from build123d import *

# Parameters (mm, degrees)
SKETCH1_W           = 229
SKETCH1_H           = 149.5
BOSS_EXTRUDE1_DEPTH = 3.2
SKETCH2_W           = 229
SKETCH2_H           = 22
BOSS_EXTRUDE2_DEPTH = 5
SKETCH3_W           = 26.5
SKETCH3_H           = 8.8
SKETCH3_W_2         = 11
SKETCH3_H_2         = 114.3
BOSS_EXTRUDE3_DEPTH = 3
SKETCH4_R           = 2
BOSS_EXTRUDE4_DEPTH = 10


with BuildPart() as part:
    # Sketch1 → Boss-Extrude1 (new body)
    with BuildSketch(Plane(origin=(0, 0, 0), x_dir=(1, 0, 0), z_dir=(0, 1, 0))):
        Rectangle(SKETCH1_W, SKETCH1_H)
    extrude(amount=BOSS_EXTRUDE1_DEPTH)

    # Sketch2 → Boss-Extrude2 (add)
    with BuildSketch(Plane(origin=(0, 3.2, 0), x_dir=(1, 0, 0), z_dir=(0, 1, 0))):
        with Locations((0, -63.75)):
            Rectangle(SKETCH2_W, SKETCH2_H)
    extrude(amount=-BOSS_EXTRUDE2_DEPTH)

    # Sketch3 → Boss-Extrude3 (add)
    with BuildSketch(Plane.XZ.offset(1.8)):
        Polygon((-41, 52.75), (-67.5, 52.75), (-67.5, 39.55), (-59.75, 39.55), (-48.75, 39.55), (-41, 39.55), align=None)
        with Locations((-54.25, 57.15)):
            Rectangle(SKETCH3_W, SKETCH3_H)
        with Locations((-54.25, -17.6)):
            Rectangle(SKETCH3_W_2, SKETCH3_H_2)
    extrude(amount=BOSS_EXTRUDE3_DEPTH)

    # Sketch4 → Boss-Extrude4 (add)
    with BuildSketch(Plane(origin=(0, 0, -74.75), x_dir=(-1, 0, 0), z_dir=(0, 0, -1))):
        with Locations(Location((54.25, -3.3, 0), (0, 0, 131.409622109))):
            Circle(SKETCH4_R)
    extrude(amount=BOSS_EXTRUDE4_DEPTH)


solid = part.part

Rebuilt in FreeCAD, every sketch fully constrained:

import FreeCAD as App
import Part
import Sketcher

V = App.Vector
Q = App.Units.Quantity


def add_polygon(sketch, points):
    """Adds a closed chain of lines whose ends are joined by coincident constraints."""
    first, n = sketch.GeometryCount, len(points)
    for a, b in zip(points, points[1:] + points[:1]):
        sketch.addGeometry(Part.LineSegment(App.Vector(*a, 0), App.Vector(*b, 0)), False)
    for i in range(n):
        sketch.addConstraint(Sketcher.Constraint("Coincident", first + i, 2, first + (i + 1) % n, 1))

doc = App.newDocument("Part")
body = doc.addObject("PartDesign::Body", "Body")

# Sketch on XZ plane
sketch1 = doc.addObject("Sketcher::SketchObject", "Sketch")
body.addObject(sketch1)
sketch1.AttachmentSupport = (doc.XZ_Plane, [""])
sketch1.MapMode = "FlatFace"
add_polygon(sketch1, [(-114, -75), (-114, 75), (114, 75), (114, -75)])  # lines 0-3
sketch1.addConstraint(Sketcher.Constraint("Vertical", 0))
sketch1.addConstraint(Sketcher.Constraint("Horizontal", 1))
sketch1.addConstraint(Sketcher.Constraint("Vertical", 2))
sketch1.addConstraint(Sketcher.Constraint("Horizontal", 3))
sketch1.addConstraint(Sketcher.Constraint("Symmetric", 0, 2, 2, 2, -1, 1))
sketch1.addConstraint(Sketcher.Constraint("DistanceX", 1, 1, 1, 2, Q("229 mm")))
sketch1.addConstraint(Sketcher.Constraint("DistanceY", 0, 1, 0, 2, Q("149.5 mm")))
pad1 = doc.addObject("PartDesign::Pad", "Pad")
body.addObject(pad1)
pad1.Profile = sketch1
pad1.Length = 3.2
pad1.Reversed = True

# Sketch on XZ plane
sketch2 = doc.addObject("Sketcher::SketchObject", "Sketch001")
body.addObject(sketch2)
sketch2.AttachmentSupport = (doc.XZ_Plane, [""])
sketch2.MapMode = "FlatFace"
sketch2.AttachmentOffset = App.Placement(V(0, 0, -3.2), App.Rotation())
add_polygon(sketch2, [(-114, 53), (-114, 75), (114, 75), (114, 53)])  # lines 0-3
sketch2.addConstraint(Sketcher.Constraint("Vertical", 0))
sketch2.addConstraint(Sketcher.Constraint("Horizontal", 1))
sketch2.addConstraint(Sketcher.Constraint("Vertical", 2))
sketch2.addConstraint(Sketcher.Constraint("Horizontal", 3))
sketch2.addConstraint(Sketcher.Constraint("DistanceX", 1, 1, 1, 2, Q("229 mm")))
sketch2.addConstraint(Sketcher.Constraint("DistanceY", 0, 1, 0, 2, Q("22 mm")))
sketch2.addConstraint(Sketcher.Constraint("DistanceX", 0, 2, -1, 1, Q("114.5 mm")))
sketch2.addConstraint(Sketcher.Constraint("DistanceY", -1, 1, 0, 2, Q("74.75 mm")))
pad2 = doc.addObject("PartDesign::Pad", "Pad001")
body.addObject(pad2)
pad2.Profile = sketch2
pad2.Length = 5

# Sketch on XZ plane
sketch3 = doc.addObject("Sketcher::SketchObject", "Sketch002")
body.addObject(sketch3)
sketch3.AttachmentSupport = (doc.XZ_Plane, [""])
sketch3.MapMode = "FlatFace"
sketch3.AttachmentOffset = App.Placement(V(0, 0, 1.8), App.Rotation())
add_polygon(sketch3, [(-68, 40), (-60, 40), (-60, -75), (-49, -75), (-49, 40), (-41, 40), (-41, 62), (-68, 62)])  # lines 0-7
sketch3.addConstraint(Sketcher.Constraint("Horizontal", 0))
sketch3.addConstraint(Sketcher.Constraint("Vertical", 1))
sketch3.addConstraint(Sketcher.Constraint("Horizontal", 2))
sketch3.addConstraint(Sketcher.Constraint("Vertical", 3))
sketch3.addConstraint(Sketcher.Constraint("Horizontal", 4))
sketch3.addConstraint(Sketcher.Constraint("Vertical", 5))
sketch3.addConstraint(Sketcher.Constraint("Horizontal", 6))
sketch3.addConstraint(Sketcher.Constraint("Vertical", 7))
sketch3.addConstraint(Sketcher.Constraint("Horizontal", 0, 2, 3, 2))
sketch3.addConstraint(Sketcher.Constraint("Equal", 0, 4))
sketch3.addConstraint(Sketcher.Constraint("DistanceX", 2, 1, 2, 2, Q("11 mm")))
sketch3.addConstraint(Sketcher.Constraint("DistanceY", 5, 1, 5, 2, Q("22 mm")))
sketch3.addConstraint(Sketcher.Constraint("DistanceX", 6, 2, 6, 1, Q("26.5 mm")))
sketch3.addConstraint(Sketcher.Constraint("DistanceY", 1, 2, 1, 1, Q("114.3 mm")))
sketch3.addConstraint(Sketcher.Constraint("DistanceX", 4, 2, -1, 1, Q("41 mm")))
sketch3.addConstraint(Sketcher.Constraint("DistanceY", -1, 1, 0, 2, Q("39.55 mm")))
pad3 = doc.addObject("PartDesign::Pad", "Pad002")
body.addObject(pad3)
pad3.Profile = sketch3
pad3.Length = 3

# Sketch on XY plane
sketch4 = doc.addObject("Sketcher::SketchObject", "Sketch003")
body.addObject(sketch4)
sketch4.AttachmentSupport = (doc.XY_Plane, [""])
sketch4.MapMode = "FlatFace"
sketch4.AttachmentOffset = App.Placement(V(0, 0, -74.75), App.Rotation())
sketch4.addGeometry(Part.Circle(V(-54.2, -3.3, 0), V(0, 0, 1), 2), False)
sketch4.addConstraint(Sketcher.Constraint("Diameter", 0, Q("4 mm")))
sketch4.addConstraint(Sketcher.Constraint("DistanceY", 0, 3, -1, 1, Q("3.3 mm")))
sketch4.addConstraint(Sketcher.Constraint("DistanceX", 0, 3, -1, 1, Q("54.25 mm")))
pad4 = doc.addObject("PartDesign::Pad", "Pad003")
body.addObject(pad4)
pad4.Profile = sketch4
pad4.Length = 10
pad4.Reversed = True

doc.recompute()
